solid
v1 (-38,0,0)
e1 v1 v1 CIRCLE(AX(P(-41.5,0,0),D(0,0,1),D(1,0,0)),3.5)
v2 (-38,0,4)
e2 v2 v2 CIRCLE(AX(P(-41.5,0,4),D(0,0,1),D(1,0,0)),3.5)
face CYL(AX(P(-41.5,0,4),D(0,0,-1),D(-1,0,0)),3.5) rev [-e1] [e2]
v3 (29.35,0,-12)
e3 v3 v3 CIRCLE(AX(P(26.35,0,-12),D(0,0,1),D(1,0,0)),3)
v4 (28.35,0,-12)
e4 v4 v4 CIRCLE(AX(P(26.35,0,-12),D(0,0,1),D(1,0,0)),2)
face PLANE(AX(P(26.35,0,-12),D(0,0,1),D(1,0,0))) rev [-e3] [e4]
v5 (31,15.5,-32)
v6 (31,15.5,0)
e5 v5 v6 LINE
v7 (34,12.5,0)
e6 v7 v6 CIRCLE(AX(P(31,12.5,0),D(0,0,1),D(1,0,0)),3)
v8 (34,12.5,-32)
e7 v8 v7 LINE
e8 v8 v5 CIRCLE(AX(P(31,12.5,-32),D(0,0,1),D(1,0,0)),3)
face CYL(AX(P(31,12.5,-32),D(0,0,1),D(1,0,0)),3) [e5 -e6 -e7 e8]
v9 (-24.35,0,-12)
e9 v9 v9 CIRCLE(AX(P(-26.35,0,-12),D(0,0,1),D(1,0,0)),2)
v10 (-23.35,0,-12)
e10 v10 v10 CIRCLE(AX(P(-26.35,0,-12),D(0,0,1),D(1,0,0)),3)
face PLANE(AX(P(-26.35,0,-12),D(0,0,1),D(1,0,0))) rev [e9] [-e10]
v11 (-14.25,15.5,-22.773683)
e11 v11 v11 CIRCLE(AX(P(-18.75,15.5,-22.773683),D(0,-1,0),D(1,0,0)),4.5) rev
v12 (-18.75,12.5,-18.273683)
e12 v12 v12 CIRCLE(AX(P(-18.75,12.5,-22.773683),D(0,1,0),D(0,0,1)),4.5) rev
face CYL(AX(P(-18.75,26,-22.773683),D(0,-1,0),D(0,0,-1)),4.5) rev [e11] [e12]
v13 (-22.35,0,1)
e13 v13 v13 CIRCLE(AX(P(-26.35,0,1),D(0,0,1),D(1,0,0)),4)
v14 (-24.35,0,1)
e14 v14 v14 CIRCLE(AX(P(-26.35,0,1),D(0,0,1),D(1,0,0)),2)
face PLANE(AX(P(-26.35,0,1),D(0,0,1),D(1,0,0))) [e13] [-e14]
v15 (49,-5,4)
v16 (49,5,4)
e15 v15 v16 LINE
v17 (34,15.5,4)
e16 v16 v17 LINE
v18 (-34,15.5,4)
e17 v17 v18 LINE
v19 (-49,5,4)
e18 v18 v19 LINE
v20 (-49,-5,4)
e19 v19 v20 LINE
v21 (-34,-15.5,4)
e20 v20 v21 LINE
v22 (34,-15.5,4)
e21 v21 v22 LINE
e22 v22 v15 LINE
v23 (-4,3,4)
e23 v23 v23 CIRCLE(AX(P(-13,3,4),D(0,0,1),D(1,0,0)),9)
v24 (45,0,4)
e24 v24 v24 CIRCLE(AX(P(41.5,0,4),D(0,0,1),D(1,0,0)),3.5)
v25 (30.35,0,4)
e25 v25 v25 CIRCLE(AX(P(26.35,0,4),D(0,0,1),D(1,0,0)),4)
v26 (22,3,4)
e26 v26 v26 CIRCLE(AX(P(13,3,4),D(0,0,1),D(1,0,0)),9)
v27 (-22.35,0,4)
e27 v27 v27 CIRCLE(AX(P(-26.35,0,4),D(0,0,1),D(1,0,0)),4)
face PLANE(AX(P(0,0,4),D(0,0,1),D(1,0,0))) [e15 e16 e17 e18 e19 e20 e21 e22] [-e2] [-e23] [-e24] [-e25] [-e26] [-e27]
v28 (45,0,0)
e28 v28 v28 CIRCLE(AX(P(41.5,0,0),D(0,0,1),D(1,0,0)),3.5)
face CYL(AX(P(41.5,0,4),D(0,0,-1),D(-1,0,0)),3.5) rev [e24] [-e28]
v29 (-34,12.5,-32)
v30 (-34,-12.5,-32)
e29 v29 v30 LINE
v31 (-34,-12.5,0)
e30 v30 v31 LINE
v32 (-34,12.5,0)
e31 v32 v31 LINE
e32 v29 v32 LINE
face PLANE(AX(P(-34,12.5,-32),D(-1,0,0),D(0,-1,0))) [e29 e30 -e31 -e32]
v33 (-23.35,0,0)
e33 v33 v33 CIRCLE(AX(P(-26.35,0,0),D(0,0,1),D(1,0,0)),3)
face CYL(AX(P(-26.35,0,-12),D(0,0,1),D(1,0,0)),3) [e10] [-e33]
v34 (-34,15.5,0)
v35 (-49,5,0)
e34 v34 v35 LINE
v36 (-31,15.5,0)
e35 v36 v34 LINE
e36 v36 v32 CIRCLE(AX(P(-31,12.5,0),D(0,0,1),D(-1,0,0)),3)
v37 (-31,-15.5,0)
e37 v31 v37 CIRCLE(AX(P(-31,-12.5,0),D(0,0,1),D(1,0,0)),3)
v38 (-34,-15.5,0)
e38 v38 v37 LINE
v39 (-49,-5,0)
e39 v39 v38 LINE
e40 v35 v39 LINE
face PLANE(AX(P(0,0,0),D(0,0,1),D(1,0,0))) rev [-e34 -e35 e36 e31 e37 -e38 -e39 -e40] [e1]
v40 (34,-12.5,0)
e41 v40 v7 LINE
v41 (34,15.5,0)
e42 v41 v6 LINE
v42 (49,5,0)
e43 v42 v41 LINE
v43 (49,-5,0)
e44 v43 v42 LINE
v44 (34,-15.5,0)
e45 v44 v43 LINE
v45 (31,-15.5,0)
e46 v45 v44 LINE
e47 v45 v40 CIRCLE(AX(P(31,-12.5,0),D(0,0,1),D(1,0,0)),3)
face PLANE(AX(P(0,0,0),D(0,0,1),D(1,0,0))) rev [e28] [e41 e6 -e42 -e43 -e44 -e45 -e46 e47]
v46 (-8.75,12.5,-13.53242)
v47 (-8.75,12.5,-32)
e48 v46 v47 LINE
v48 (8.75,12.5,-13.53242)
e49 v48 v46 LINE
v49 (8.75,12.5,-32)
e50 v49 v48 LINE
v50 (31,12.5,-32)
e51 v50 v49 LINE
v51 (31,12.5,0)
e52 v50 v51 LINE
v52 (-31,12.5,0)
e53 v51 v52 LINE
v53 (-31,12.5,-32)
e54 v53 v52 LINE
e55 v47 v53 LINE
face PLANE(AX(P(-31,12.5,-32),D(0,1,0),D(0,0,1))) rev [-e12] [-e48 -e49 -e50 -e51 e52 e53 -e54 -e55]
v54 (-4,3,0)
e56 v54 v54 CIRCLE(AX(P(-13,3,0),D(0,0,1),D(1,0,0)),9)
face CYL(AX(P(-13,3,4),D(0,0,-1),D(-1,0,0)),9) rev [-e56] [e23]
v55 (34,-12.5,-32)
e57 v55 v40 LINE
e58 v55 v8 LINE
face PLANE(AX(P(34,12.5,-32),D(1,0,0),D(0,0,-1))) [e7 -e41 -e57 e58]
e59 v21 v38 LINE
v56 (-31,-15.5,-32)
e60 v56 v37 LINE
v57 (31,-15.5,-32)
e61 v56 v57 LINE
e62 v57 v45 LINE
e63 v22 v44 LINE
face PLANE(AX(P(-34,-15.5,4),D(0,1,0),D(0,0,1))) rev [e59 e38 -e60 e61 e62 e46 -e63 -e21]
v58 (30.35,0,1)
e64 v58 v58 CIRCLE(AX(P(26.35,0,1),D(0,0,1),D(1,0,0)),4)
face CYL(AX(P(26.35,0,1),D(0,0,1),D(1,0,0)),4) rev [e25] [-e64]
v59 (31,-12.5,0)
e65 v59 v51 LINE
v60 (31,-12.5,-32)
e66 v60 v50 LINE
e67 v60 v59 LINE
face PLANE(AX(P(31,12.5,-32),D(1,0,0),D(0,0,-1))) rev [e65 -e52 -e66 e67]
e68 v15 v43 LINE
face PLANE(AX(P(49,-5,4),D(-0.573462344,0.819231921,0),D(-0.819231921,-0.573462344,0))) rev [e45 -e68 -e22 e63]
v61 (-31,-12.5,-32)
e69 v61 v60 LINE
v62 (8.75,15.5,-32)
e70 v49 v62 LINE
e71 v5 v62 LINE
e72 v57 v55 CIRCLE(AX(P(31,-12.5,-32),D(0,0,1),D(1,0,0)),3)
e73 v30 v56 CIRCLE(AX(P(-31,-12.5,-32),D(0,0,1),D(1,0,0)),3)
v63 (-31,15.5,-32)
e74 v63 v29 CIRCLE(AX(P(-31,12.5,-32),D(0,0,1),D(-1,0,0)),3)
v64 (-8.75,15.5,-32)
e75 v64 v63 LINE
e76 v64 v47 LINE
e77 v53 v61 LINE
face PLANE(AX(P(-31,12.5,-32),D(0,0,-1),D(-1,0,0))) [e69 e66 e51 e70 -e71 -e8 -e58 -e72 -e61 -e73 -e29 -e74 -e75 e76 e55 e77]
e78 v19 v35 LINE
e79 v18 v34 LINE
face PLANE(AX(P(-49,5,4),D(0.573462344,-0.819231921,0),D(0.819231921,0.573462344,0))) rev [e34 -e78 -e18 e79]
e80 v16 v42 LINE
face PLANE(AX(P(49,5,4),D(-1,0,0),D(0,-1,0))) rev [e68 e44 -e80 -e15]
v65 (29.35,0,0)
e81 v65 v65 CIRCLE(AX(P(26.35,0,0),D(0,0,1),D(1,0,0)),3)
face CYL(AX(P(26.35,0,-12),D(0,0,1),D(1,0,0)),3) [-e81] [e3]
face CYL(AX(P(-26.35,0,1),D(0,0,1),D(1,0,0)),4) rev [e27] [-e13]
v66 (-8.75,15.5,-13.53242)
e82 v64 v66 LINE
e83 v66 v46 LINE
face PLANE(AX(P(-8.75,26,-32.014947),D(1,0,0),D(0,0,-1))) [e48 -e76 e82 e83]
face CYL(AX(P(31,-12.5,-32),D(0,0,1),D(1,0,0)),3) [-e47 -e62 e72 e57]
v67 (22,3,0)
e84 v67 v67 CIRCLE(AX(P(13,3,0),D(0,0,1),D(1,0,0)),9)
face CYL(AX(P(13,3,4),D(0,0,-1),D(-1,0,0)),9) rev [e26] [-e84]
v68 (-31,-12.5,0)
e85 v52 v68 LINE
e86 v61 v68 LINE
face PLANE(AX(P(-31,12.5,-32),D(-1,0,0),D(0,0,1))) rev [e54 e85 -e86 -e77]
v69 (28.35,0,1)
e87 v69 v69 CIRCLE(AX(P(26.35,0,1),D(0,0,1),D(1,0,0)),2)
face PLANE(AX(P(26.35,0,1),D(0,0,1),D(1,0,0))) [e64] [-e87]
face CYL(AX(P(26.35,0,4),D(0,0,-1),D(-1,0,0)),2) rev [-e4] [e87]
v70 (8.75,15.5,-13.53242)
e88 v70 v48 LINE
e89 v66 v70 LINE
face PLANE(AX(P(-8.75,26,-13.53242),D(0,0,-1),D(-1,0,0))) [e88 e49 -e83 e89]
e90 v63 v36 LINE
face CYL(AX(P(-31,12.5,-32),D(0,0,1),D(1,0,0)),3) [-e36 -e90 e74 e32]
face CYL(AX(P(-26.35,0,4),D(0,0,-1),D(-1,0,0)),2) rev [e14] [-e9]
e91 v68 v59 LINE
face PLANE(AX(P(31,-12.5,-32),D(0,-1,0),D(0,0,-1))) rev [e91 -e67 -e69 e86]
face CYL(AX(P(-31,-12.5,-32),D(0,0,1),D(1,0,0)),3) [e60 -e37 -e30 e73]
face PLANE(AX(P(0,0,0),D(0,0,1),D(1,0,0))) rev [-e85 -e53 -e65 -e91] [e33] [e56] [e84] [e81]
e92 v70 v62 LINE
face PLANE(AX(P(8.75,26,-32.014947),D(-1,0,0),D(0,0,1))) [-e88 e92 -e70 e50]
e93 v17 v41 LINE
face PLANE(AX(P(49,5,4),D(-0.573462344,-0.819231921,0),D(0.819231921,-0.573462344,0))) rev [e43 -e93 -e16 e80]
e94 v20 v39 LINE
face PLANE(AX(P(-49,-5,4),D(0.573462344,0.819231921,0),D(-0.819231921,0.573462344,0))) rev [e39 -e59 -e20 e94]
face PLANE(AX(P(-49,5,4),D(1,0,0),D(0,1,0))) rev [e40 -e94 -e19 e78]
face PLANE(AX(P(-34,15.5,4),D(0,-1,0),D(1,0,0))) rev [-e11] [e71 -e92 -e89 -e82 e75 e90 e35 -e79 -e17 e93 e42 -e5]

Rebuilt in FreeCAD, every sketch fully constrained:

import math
import FreeCAD as App
import Part
import Sketcher

V = App.Vector


def add_polygon(sketch, points):
    """Adds a closed chain of lines whose ends are joined by coincident constraints."""
    first, n = sketch.GeometryCount, len(points)
    for a, b in zip(points, points[1:] + points[:1]):
        sketch.addGeometry(Part.LineSegment(App.Vector(*a, 0), App.Vector(*b, 0)), False)
    for i in range(n):
        sketch.addConstraint(Sketcher.Constraint("Coincident", first + i, 2, first + (i + 1) % n, 1))

doc = App.newDocument("Part")
params = doc.addObject("Spreadsheet::Sheet", "Params")
for row, (alias, value) in enumerate([
    ("sketch1_diameter", "7 mm"),
    ("sketch1_diameter2", "4 mm"),
    ("sketch1_diameter3", "18 mm"),
    ("sketch1_width", "68 mm"),
    ("sketch1_height", "10 mm"),
    ("pad1_length", "4 mm"),
    ("sketch2_diameter", "6 mm"),
    ("sketch2_diameter2", "4 mm"),
    ("pad2_length", "12 mm"),
    ("sketch3_radius", "3 mm"),
    ("sketch3_width", "62 mm"),
    ("sketch3_height", "25 mm"),
    ("pad3_length", "32 mm"),
    ("sketch4_diameter", "9 mm"),
    ("sketch4_width", "17.5 mm"),
    ("pocket1_length", "10 mm"),
    ("pocket1_length2", "18 mm"),
    ("sketch5_diameter", "8 mm"),
    ("sketch5_diameter2", "4 mm"),
    ("pocket2_length", "3 mm"),
], start=1):
    params.set(f"A{row}", alias)
    params.set(f"B{row}", "=" + value)
    params.setAlias(f"B{row}", alias)

body = doc.addObject("PartDesign::Body", "Body")

sketch1 = doc.addObject("Sketcher::SketchObject", "Sketch")
body.addObject(sketch1)
sketch1.AttachmentSupport = (doc.XY_Plane, [""])
sketch1.MapMode = "FlatFace"
add_polygon(sketch1, [(34, 15.5), (-34, 15.5), (-49, 5), (-49, -5), (-34, -15.5), (34, -15.5), (49, -5), (49, 5)])
sketch1.addGeometry(Part.Circle(V(41.5, 0, 0), V(0, 0, 1), 3.5), False)
sketch1.addGeometry(Part.Circle(V(26.35, 0, 0), V(0, 0, 1), 2), False)
sketch1.addGeometry(Part.Circle(V(-26.35, 0, 0), V(0, 0, 1), 2), False)
sketch1.addGeometry(Part.Circle(V(-41.5, 0, 0), V(0, 0, 1), 3.5), False)
sketch1.addGeometry(Part.Circle(V(13, 3, 0), V(0, 0, 1), 9), False)
sketch1.addGeometry(Part.Circle(V(-13, 3, 0), V(0, 0, 1), 9), False)
sketch1.addConstraint(Sketcher.Constraint("Horizontal", 0))
sketch1.addConstraint(Sketcher.Constraint("Vertical", 2))
sketch1.addConstraint(Sketcher.Constraint("Horizontal", 4))
sketch1.addConstraint(Sketcher.Constraint("Vertical", 6))
sketch1.addConstraint(Sketcher.Constraint("Equal", 9, 10))
sketch1.addConstraint(Sketcher.Constraint("Equal", 8, 11))
sketch1.addConstraint(Sketcher.Constraint("Equal", 12, 13))
sketch1.addConstraint(Sketcher.Constraint("Symmetric", 9, 3, 10, 3, -1, 1))
sketch1.addConstraint(Sketcher.Constraint("Symmetric", 8, 3, 11, 3, -1, 1))
sketch1.addConstraint(Sketcher.Constraint("Symmetric", 0, 2, 4, 2, -1, 1))
sketch1.addConstraint(Sketcher.Constraint("Symmetric", 1, 2, 5, 2, -1, 1))
sketch1.addConstraint(Sketcher.Constraint("Symmetric", 12, 3, 13, 3, -2))
sketch1.addConstraint(Sketcher.Constraint("PointOnObject", 8, 3, -1))
sketch1.addConstraint(Sketcher.Constraint("PointOnObject", 9, 3, -1))
sketch1.addConstraint(Sketcher.Constraint("Parallel", 3, 7))
sketch1.addConstraint(Sketcher.Constraint("Horizontal", 2, 2, 5, 2))
sketch1.addConstraint(Sketcher.Constraint("Horizontal", 1, 2, 6, 2))
sketch1.addConstraint(Sketcher.Constraint("Vertical", 0, 2, 3, 2))
sketch1.addConstraint(Sketcher.Constraint("Diameter", 8, 7.0))
sketch1.addConstraint(Sketcher.Constraint("Diameter", 9, 4.0))
sketch1.addConstraint(Sketcher.Constraint("Diameter", 12, 18.0))
sketch1.addConstraint(Sketcher.Constraint("DistanceX", 0, 2, 0, 1, 68.0))
sketch1.addConstraint(Sketcher.Constraint("DistanceY", 2, 2, 2, 1, 10.0))
sketch1.addConstraint(Sketcher.Constraint("DistanceX", -1, 1, 12, 3, 13.0))
sketch1.addConstraint(Sketcher.Constraint("DistanceY", -1, 1, 12, 3, 3.0))
sketch1.addConstraint(Sketcher.Constraint("DistanceX", 1, 2, -1, 1, 49.0))
sketch1.addConstraint(Sketcher.Constraint("DistanceX", 11, 3, 8, 3, 83.0))
sketch1.addConstraint(Sketcher.Constraint("DistanceY", -1, 1, 0, 2, 15.5))
sketch1.addConstraint(Sketcher.Constraint("DistanceX", 10, 3, 9, 3, 52.7))
sketch1.setExpression("Constraints[26]", "Params.sketch1_diameter")
sketch1.setExpression("Constraints[27]", "Params.sketch1_diameter2")
sketch1.setExpression("Constraints[28]", "Params.sketch1_diameter3")
sketch1.setExpression("Constraints[29]", "Params.sketch1_width")
sketch1.setExpression("Constraints[30]", "Params.sketch1_height")
pad1 = doc.addObject("PartDesign::Pad", "Pad")
body.addObject(pad1)
pad1.Profile = sketch1
pad1.setExpression("Length", "Params.pad1_length")

sketch2 = doc.addObject("Sketcher::SketchObject", "Sketch001")
body.addObject(sketch2)
sketch2.AttachmentSupport = (doc.XY_Plane, [""])
sketch2.MapMode = "FlatFace"
sketch2.AttachmentOffset = App.Placement(V(0, 0, -12), App.Rotation())
sketch2.addGeometry(Part.Circle(V(26.35, 0, 0), V(0, 0, 1), 3), False)
sketch2.addGeometry(Part.Circle(V(26.35, 0, 0), V(0, 0, 1), 2), False)
sketch2.addGeometry(Part.Circle(V(-26.35, 0, 0), V(0, 0, 1), 3), False)
sketch2.addGeometry(Part.Circle(V(-26.35, 0, 0), V(0, 0, 1), 2), False)
sketch2.addConstraint(Sketcher.Constraint("Coincident", 1, 3, 0, 3))
sketch2.addConstraint(Sketcher.Constraint("Coincident", 3, 3, 2, 3))
sketch2.addConstraint(Sketcher.Constraint("Equal", 0, 2))
sketch2.addConstraint(Sketcher.Constraint("Equal", 1, 3))
sketch2.addConstraint(Sketcher.Constraint("Symmetric", 0, 3, 2, 3, -1, 1))
sketch2.addConstraint(Sketcher.Constraint("PointOnObject", 0, 3, -1))
sketch2.addConstraint(Sketcher.Constraint("Diameter", 0, 6.0))
sketch2.addConstraint(Sketcher.Constraint("Diameter", 1, 4.0))
sketch2.addConstraint(Sketcher.Constraint("DistanceX", 2, 3, 0, 3, 52.7))
sketch2.setExpression("Constraints[6]", "Params.sketch2_diameter")
sketch2.setExpression("Constraints[7]", "Params.sketch2_diameter2")
pad2 = doc.addObject("PartDesign::Pad", "Pad001")
body.addObject(pad2)
pad2.Profile = sketch2
pad2.setExpression("Length", "Params.pad2_length")

sketch3 = doc.addObject("Sketcher::SketchObject", "Sketch002")
body.addObject(sketch3)
sketch3.AttachmentSupport = (doc.XY_Plane, [""])
sketch3.MapMode = "FlatFace"
sketch3.addGeometry(Part.LineSegment(V(31, 15.5, 0), V(-31, 15.5, 0)), False)
sketch3.addGeometry(Part.ArcOfCircle(Part.Circle(V(-31, 12.5, 0), V(0, 0, 1), 3), math.radians(90), math.radians(180)), False)
sketch3.addGeometry(Part.LineSegment(V(-34, 12.5, 0), V(-34, -12.5, 0)), False)
sketch3.addGeometry(Part.ArcOfCircle(Part.Circle(V(-31, -12.5, 0), V(0, 0, 1), 3), math.radians(180), math.radians(270)), False)
sketch3.addGeometry(Part.LineSegment(V(-31, -15.5, 0), V(31, -15.5, 0)), False)
sketch3.addGeometry(Part.ArcOfCircle(Part.Circle(V(31, -12.5, 0), V(0, 0, 1), 3), math.radians(-90), math.radians(0)), False)
sketch3.addGeometry(Part.LineSegment(V(34, -12.5, 0), V(34, 12.5, 0)), False)
sketch3.addGeometry(Part.ArcOfCircle(Part.Circle(V(31, 12.5, 0), V(0, 0, 1), 3), math.radians(0), math.radians(90)), False)
add_polygon(sketch3, [(31, -12.5), (-31, -12.5), (-31, 12.5), (31, 12.5)])
sketch3.addConstraint(Sketcher.Constraint("Tangent", 0, 2, 1, 1))
sketch3.addConstraint(Sketcher.Constraint("Tangent", 1, 2, 2, 1))
sketch3.addConstraint(Sketcher.Constraint("Tangent", 2, 2, 3, 1))
sketch3.addConstraint(Sketcher.Constraint("Tangent", 3, 2, 4, 1))
sketch3.addConstraint(Sketcher.Constraint("Tangent", 4, 2, 5, 1))
sketch3.addConstraint(Sketcher.Constraint("Tangent", 5, 2, 6, 1))
sketch3.addConstraint(Sketcher.Constraint("Tangent", 6, 2, 7, 1))
sketch3.addConstraint(Sketcher.Constraint("Tangent", 7, 2, 0, 1))
sketch3.addConstraint(Sketcher.Constraint("Horizontal", 0))
sketch3.addConstraint(Sketcher.Constraint("Vertical", 2))
sketch3.addConstraint(Sketcher.Constraint("Horizontal", 4))
sketch3.addConstraint(Sketcher.Constraint("Vertical", 6))
sketch3.addConstraint(Sketcher.Constraint("Horizontal", 8))
sketch3.addConstraint(Sketcher.Constraint("Vertical", 9))
sketch3.addConstraint(Sketcher.Constraint("Horizontal", 10))
sketch3.addConstraint(Sketcher.Constraint("Vertical", 11))
sketch3.addConstraint(Sketcher.Constraint("Coincident", 8, 2, 3, 3))
sketch3.addConstraint(Sketcher.Constraint("Coincident", 9, 2, 1, 3))
sketch3.addConstraint(Sketcher.Constraint("Coincident", 10, 2, 7, 3))
sketch3.addConstraint(Sketcher.Constraint("Equal", 3, 5))
sketch3.addConstraint(Sketcher.Constraint("Symmetric", 1, 3, 5, 3, -1, 1))
sketch3.addConstraint(Sketcher.Constraint("Radius", 1, 3.0))
sketch3.addConstraint(Sketcher.Constraint("DistanceX", 0, 2, 0, 1, 62.0))
sketch3.addConstraint(Sketcher.Constraint("DistanceY", 2, 2, 2, 1, 25.0))
sketch3.setExpression("Constraints[25]", "Params.sketch3_radius")
sketch3.setExpression("Constraints[26]", "Params.sketch3_width")
sketch3.setExpression("Constraints[27]", "Params.sketch3_height")
pad3 = doc.addObject("PartDesign::Pad", "Pad002")
body.addObject(pad3)
pad3.Profile = sketch3
pad3.setExpression("Length", "Params.pad3_length")
pad3.Reversed = True

sketch4 = doc.addObject("Sketcher::SketchObject", "Sketch003")
body.addObject(sketch4)
sketch4.AttachmentSupport = (doc.XZ_Plane, [""])
sketch4.MapMode = "FlatFace"
sketch4.AttachmentOffset = App.Placement(V(0, 0, -16), App.Rotation())
sketch4.addGeometry(Part.Circle(V(-18.75, -22.773683, 0), V(0, 0, 1), 4.5), False)
add_polygon(sketch4, [(-8.75, -32.014947), (-8.75, -13.53242), (8.75, -13.53242), (8.75, -32.014947)])
sketch4.addConstraint(Sketcher.Constraint("Vertical", 1))
sketch4.addConstraint(Sketcher.Constraint("Horizontal", 2))
sketch4.addConstraint(Sketcher.Constraint("Vertical", 3))
sketch4.addConstraint(Sketcher.Constraint("Horizontal", 4))
sketch4.addConstraint(Sketcher.Constraint("Diameter", 0, 9.0))
sketch4.addConstraint(Sketcher.Constraint("DistanceX", 2, 1, 2, 2, 17.5))
sketch4.addConstraint(Sketcher.Constraint("DistanceX", 0, 3, 1, 2, 10.0))
sketch4.addConstraint(Sketcher.Constraint("DistanceX", 0, 3, -1, 1, 18.75))
sketch4.addConstraint(Sketcher.Constraint("DistanceY", 1, 1, 1, 2, 18.482528))
sketch4.addConstraint(Sketcher.Constraint("DistanceY", 1, 2, -1, 1, 13.53242))
sketch4.addConstraint(Sketcher.Constraint("DistanceY", 0, 3, -1, 1, 22.773683))
sketch4.setExpression("Constraints[8]", "Params.sketch4_diameter")
sketch4.setExpression("Constraints[9]", "Params.sketch4_width")
pocket1 = doc.addObject("PartDesign::Pocket", "Pocket")
body.addObject(pocket1)
pocket1.Profile = sketch4
pocket1.Type = "TwoLengths"
pocket1.setExpression("Length", "Params.pocket1_length")
pocket1.setExpression("Length2", "Params.pocket1_length2")

sketch5 = doc.addObject("Sketcher::SketchObject", "Sketch004")
body.addObject(sketch5)
sketch5.AttachmentSupport = (doc.XY_Plane, [""])
sketch5.MapMode = "FlatFace"
sketch5.AttachmentOffset = App.Placement(V(0, 0, 1), App.Rotation())
sketch5.addGeometry(Part.Circle(V(26.35, 0, 0), V(0, 0, 1), 4), False)
sketch5.addGeometry(Part.Circle(V(26.35, 0, 0), V(0, 0, 1), 2), False)
sketch5.addGeometry(Part.Circle(V(-26.35, 0, 0), V(0, 0, 1), 4), False)
sketch5.addGeometry(Part.Circle(V(-26.35, 0, 0), V(0, 0, 1), 2), False)
sketch5.addConstraint(Sketcher.Constraint("Coincident", 1, 3, 0, 3))
sketch5.addConstraint(Sketcher.Constraint("Coincident", 3, 3, 2, 3))
sketch5.addConstraint(Sketcher.Constraint("Equal", 0, 2))
sketch5.addConstraint(Sketcher.Constraint("Equal", 1, 3))
sketch5.addConstraint(Sketcher.Constraint("Symmetric", 0, 3, 2, 3, -1, 1))
sketch5.addConstraint(Sketcher.Constraint("PointOnObject", 0, 3, -1))
sketch5.addConstraint(Sketcher.Constraint("Diameter", 0, 8.0))
sketch5.addConstraint(Sketcher.Constraint("Diameter", 1, 4.0))
sketch5.addConstraint(Sketcher.Constraint("DistanceX", 2, 3, 0, 3, 52.7))
sketch5.setExpression("Constraints[6]", "Params.sketch5_diameter")
sketch5.setExpression("Constraints[7]", "Params.sketch5_diameter2")
pocket2 = doc.addObject("PartDesign::Pocket", "Pocket001")
body.addObject(pocket2)
pocket2.Profile = sketch5
pocket2.setExpression("Length", "Params.pocket2_length")
pocket2.Reversed = True

doc.recompute()
